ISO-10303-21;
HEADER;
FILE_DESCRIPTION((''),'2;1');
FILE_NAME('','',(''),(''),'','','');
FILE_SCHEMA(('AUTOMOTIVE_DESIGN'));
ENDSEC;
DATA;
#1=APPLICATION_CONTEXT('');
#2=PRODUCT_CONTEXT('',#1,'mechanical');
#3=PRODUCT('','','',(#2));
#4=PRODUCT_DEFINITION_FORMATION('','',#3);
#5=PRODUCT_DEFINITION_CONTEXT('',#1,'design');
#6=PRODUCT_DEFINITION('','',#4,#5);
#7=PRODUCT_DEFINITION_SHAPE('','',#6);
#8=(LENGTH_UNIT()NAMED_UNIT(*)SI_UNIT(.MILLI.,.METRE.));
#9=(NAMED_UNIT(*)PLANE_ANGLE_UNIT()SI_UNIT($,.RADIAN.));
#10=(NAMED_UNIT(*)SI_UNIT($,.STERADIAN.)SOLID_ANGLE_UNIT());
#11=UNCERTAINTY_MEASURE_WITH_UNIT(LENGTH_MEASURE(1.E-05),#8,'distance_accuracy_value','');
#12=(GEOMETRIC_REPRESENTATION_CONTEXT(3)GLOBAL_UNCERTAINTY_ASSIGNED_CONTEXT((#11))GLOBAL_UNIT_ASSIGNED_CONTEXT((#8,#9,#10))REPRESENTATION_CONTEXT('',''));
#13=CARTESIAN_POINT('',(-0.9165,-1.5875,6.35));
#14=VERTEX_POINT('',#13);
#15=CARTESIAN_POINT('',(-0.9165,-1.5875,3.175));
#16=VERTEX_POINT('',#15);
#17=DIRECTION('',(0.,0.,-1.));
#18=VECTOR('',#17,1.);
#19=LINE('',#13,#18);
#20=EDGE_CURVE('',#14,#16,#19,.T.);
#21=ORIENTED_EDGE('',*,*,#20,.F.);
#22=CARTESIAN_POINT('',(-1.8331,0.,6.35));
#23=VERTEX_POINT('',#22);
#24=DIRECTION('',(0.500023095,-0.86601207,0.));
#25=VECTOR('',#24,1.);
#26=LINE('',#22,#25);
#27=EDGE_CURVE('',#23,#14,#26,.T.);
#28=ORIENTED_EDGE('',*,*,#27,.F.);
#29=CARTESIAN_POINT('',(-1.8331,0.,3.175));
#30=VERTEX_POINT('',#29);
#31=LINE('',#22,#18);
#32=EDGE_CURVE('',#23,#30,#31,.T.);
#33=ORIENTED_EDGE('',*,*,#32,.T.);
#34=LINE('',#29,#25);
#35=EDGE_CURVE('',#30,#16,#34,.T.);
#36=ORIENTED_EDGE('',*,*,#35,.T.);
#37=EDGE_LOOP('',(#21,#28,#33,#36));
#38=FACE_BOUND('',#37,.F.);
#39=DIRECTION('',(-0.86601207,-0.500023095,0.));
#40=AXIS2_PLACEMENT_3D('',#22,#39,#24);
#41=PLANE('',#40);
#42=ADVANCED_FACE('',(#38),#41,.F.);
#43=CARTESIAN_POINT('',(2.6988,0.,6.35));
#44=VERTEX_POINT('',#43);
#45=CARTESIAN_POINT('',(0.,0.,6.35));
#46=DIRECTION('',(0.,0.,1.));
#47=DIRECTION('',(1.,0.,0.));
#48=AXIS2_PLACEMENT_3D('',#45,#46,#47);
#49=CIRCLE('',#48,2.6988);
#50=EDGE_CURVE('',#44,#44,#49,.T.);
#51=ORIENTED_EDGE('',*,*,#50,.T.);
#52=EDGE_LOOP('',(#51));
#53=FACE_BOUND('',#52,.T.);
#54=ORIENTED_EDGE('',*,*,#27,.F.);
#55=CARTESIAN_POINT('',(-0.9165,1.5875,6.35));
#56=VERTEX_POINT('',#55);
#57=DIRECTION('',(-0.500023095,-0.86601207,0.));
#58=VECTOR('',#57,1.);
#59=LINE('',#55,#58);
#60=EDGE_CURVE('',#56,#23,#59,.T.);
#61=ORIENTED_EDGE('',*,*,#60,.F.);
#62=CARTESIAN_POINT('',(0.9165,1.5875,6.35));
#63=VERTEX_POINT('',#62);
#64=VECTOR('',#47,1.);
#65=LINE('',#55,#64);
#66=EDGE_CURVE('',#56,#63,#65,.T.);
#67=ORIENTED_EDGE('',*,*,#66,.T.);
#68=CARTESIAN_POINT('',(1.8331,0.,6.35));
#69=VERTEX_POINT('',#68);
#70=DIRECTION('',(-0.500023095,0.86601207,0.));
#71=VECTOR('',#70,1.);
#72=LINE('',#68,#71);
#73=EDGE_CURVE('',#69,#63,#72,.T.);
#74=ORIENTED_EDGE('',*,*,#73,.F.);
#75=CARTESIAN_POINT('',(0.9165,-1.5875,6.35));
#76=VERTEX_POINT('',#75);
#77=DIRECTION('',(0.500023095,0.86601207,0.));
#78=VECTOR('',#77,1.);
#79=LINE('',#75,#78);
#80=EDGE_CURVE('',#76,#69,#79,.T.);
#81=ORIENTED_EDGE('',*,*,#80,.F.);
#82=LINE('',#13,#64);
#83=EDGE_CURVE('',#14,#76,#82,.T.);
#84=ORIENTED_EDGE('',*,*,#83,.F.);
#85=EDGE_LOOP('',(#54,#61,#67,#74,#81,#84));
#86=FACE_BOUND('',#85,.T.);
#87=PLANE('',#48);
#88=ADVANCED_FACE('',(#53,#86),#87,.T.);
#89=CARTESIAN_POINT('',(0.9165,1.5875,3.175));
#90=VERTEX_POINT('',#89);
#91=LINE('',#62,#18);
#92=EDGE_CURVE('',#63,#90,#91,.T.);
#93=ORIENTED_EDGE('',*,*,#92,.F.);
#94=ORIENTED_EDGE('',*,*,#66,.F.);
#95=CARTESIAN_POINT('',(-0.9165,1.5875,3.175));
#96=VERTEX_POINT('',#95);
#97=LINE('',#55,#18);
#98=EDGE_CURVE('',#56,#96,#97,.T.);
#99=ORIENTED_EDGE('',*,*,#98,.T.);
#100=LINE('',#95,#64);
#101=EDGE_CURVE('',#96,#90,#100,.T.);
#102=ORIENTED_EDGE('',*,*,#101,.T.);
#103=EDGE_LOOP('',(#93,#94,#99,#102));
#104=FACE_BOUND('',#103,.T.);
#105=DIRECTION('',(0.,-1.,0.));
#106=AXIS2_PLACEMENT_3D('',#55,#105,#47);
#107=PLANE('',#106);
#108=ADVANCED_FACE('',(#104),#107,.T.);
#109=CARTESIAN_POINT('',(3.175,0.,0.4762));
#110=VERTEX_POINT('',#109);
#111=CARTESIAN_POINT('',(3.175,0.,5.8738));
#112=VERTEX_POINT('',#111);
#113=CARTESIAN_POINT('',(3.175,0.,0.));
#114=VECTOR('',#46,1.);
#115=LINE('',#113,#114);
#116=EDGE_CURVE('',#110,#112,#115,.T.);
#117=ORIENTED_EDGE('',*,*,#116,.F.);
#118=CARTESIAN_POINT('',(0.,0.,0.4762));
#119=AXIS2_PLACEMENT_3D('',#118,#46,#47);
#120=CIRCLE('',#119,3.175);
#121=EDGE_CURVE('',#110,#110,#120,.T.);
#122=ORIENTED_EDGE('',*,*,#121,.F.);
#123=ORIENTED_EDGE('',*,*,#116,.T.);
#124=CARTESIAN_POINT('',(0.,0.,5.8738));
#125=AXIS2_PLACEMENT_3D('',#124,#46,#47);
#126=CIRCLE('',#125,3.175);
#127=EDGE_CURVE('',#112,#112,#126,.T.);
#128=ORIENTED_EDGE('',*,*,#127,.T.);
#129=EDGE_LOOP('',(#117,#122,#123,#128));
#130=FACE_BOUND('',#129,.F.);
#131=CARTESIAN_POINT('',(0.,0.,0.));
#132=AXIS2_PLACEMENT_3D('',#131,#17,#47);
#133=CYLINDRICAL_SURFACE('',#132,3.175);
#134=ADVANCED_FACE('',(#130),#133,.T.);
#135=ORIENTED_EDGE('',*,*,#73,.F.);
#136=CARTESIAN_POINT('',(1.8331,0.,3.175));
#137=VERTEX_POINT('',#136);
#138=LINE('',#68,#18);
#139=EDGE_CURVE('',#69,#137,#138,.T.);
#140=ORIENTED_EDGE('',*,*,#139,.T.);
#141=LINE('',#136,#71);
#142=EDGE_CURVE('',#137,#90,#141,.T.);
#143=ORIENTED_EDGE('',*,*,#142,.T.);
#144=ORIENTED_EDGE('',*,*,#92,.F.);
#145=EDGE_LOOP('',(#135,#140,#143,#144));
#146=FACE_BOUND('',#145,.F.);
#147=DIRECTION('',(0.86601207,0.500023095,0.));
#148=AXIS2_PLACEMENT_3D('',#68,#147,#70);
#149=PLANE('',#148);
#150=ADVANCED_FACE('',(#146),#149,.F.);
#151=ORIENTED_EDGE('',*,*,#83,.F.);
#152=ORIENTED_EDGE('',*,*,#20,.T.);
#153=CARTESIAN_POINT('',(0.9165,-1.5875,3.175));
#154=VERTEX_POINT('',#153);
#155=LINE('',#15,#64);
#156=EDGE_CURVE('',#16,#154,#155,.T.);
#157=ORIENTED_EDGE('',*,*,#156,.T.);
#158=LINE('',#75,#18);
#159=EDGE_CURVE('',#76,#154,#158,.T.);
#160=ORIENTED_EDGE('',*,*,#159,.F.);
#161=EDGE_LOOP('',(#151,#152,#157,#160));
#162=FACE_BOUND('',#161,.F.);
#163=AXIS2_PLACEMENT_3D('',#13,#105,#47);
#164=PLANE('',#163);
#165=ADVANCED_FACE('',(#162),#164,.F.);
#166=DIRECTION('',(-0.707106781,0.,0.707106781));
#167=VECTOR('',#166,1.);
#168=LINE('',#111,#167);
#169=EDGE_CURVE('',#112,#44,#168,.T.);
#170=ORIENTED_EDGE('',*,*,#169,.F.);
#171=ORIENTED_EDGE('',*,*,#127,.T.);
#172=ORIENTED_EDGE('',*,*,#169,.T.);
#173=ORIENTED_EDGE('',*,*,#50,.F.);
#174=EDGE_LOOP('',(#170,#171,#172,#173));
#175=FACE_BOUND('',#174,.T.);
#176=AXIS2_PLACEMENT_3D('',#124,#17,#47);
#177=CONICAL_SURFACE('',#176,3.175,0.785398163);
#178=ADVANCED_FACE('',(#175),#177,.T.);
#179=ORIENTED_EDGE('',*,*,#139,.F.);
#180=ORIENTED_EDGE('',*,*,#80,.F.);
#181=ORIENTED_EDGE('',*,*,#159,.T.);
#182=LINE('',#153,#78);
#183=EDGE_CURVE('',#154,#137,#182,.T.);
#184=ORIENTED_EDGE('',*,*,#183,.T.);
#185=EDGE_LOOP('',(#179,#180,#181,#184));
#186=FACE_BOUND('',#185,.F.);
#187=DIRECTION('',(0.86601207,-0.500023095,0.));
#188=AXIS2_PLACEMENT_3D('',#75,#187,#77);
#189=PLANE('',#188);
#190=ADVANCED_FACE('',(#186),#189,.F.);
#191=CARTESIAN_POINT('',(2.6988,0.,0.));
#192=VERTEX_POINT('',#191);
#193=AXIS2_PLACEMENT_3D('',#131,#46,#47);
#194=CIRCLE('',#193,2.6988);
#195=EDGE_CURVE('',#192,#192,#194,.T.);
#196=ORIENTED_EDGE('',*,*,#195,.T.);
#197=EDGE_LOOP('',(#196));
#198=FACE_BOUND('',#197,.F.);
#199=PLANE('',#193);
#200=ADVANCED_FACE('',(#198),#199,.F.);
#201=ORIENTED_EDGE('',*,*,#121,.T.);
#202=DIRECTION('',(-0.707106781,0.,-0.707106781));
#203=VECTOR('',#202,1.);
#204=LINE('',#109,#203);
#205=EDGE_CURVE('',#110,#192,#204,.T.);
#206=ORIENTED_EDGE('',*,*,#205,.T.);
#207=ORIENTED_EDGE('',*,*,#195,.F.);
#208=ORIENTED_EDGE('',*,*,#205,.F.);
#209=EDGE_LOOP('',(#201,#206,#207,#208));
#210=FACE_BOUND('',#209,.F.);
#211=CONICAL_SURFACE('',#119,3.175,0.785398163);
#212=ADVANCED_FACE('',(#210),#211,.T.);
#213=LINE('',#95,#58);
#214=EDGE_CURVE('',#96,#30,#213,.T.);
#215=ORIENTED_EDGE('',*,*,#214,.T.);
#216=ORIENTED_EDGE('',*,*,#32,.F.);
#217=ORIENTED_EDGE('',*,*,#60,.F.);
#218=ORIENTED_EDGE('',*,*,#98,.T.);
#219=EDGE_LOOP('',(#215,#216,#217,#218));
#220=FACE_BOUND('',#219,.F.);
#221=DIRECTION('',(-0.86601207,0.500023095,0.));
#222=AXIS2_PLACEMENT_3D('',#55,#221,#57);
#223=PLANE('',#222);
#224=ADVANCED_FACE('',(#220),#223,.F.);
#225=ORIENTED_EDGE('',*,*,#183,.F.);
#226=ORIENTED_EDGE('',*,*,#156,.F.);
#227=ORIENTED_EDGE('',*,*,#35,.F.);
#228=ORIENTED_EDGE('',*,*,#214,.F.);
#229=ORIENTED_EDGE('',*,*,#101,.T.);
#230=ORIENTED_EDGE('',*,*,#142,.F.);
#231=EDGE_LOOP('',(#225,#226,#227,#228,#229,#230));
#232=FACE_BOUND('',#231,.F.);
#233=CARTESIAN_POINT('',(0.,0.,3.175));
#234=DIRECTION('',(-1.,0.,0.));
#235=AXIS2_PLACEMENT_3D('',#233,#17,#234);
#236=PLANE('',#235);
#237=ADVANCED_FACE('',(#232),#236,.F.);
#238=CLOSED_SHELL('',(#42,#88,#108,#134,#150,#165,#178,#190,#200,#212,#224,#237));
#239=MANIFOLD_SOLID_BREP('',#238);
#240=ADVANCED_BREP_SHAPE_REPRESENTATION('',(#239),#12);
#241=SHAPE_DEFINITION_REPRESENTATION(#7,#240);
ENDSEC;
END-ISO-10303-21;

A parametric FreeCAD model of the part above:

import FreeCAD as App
import Part
import Sketcher

V = App.Vector
Q = App.Units.Quantity


def edges_at(feature, points):
    """Names of the edges that pass closest to the given points."""
    edges = feature.Shape.Edges
    near = lambda p: min(range(len(edges)), key=lambda i: edges[i].distToShape(Part.Vertex(*p))[0])
    return sorted({f"Edge{near(p) + 1}" for p in points})


def add_polygon(sketch, points):
    """Adds a closed chain of lines whose ends are joined by coincident constraints."""
    first, n = sketch.GeometryCount, len(points)
    for a, b in zip(points, points[1:] + points[:1]):
        sketch.addGeometry(Part.LineSegment(App.Vector(*a, 0), App.Vector(*b, 0)), False)
    for i in range(n):
        sketch.addConstraint(Sketcher.Constraint("Coincident", first + i, 2, first + (i + 1) % n, 1))

doc = App.newDocument("Part")
body = doc.addObject("PartDesign::Body", "Body")

# Sketch on XY plane
sketch1 = doc.addObject("Sketcher::SketchObject", "Sketch")
body.addObject(sketch1)
sketch1.AttachmentSupport = (doc.XY_Plane, [""])
sketch1.MapMode = "FlatFace"
sketch1.addGeometry(Part.Circle(V(0, 0, 0), V(0, 0, 1), 3.175), False)
sketch1.addConstraint(Sketcher.Constraint("Coincident", 0, 3, -1, 1))
sketch1.addConstraint(Sketcher.Constraint("Diameter", 0, Q("0.25 in")))
pad1 = doc.addObject("PartDesign::Pad", "Pad")
body.addObject(pad1)
pad1.Profile = sketch1
pad1.Length = Q("0.25 in")
doc.recompute()

chamfer = doc.addObject("PartDesign::Chamfer", "Chamfer")
body.addObject(chamfer)
chamfer.Base = (pad1, edges_at(pad1, [(-3.175, 0, 0), (-3.175, 0, 6.35)]))
chamfer.Size = 0.4762

# Sketch on XY plane
sketch2 = doc.addObject("Sketcher::SketchObject", "Sketch001")
body.addObject(sketch2)
sketch2.AttachmentSupport = (doc.XY_Plane, [""])
sketch2.MapMode = "FlatFace"
sketch2.AttachmentOffset = App.Placement(V(0, 0, 0.25 * 25.4), App.Rotation())
add_polygon(sketch2, [(0.9165, 1.5875), (-0.9165, 1.5875), (-1.8331, 0), (-0.9165, -1.5875), (0.9165, -1.5875), (1.8331, 0)])  # lines 0-5
sketch2.addConstraint(Sketcher.Constraint("Horizontal", 0))
sketch2.addConstraint(Sketcher.Constraint("Horizontal", 3))
sketch2.addConstraint(Sketcher.Constraint("Symmetric", 0, 2, 3, 2, -1, 1))
sketch2.addConstraint(Sketcher.Constraint("Symmetric", 1, 2, 4, 2, -1, 1))
sketch2.addConstraint(Sketcher.Constraint("PointOnObject", 1, 2, -1))
sketch2.addConstraint(Sketcher.Constraint("Parallel", 2, 5))
sketch2.addConstraint(Sketcher.Constraint("Vertical", 0, 2, 2, 2))
sketch2.addConstraint(Sketcher.Constraint("DistanceY", -1, 1, 0, 2, Q("0.0625 in")))
sketch2.addConstraint(Sketcher.Constraint("DistanceX", 0, 2, 0, 1, 1.833))
sketch2.addConstraint(Sketcher.Constraint("Distance", 1, 1.833))
pocket1 = doc.addObject("PartDesign::Pocket", "Pocket")
body.addObject(pocket1)
pocket1.Profile = sketch2
pocket1.Length = Q("0.125 in")

doc.recompute()
